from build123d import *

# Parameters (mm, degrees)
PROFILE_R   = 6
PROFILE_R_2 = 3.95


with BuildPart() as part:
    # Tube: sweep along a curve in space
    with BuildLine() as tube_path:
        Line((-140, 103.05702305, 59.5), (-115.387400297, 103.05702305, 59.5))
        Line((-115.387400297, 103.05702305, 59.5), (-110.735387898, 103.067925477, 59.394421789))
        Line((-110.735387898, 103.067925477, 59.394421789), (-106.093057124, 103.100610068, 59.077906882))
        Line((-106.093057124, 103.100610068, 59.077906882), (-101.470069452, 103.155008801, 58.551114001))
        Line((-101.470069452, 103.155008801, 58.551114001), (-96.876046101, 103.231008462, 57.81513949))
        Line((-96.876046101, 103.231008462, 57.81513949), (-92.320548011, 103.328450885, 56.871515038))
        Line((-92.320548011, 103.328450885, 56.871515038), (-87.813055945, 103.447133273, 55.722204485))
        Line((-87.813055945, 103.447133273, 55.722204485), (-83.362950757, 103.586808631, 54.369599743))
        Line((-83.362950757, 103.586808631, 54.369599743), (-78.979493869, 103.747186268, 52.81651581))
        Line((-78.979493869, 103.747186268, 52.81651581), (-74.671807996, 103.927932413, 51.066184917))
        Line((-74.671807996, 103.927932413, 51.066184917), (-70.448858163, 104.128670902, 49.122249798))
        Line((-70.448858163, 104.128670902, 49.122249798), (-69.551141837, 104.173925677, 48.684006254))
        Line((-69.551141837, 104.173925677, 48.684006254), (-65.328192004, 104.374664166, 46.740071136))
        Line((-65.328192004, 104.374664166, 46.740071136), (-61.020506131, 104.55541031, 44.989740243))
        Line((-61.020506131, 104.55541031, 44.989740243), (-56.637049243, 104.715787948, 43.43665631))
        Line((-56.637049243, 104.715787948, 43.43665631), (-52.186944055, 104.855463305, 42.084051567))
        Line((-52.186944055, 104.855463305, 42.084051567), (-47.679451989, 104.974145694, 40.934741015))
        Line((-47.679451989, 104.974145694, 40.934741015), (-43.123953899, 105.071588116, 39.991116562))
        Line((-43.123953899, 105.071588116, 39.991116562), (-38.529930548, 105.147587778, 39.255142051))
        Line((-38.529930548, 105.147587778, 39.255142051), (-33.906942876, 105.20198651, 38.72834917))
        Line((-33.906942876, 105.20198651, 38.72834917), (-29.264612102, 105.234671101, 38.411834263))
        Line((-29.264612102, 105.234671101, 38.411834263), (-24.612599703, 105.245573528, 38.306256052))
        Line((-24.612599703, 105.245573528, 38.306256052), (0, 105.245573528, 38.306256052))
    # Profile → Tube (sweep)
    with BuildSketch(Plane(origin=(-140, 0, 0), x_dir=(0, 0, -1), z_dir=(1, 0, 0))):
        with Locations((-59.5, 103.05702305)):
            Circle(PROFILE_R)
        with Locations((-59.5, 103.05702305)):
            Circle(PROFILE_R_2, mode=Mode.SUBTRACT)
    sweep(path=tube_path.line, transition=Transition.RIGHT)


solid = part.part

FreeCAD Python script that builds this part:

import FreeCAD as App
import Part
import Sketcher
from FreeCAD import Vector
Q = App.Units.Quantity

doc = App.newDocument("Part")
body = doc.addObject("PartDesign::Body", "Body")

sketch1 = body.newObject("Sketcher::SketchObject", "Sketch")
sketch1.AttachmentSupport = (doc.getObject("YZ_Plane"), [""])
sketch1.MapMode = "FlatFace"
sketch1.AttachmentOffset = App.Placement(Vector(0, 0, -140), App.Rotation())
sketch1.addGeometry([
    Part.Circle(Vector(103.1, 59.5, 0), Vector(0, 0, 1), 6),
    Part.Circle(Vector(103.1, 59.5, 0), Vector(0, 0, 1), 4),
], False)
sketch1.addConstraint([
    Sketcher.Constraint("Coincident", 1, 3, 0, 3),
    Sketcher.Constraint("Diameter", 0, Q("12 mm")),
    Sketcher.Constraint("Diameter", 1, Q("7.9 mm")),
    Sketcher.Constraint("DistanceY", -1, 1, 0, 3, Q("59.5 mm")),
    Sketcher.Constraint("DistanceX", -1, 1, 0, 3, Q("103.057023 mm")),
])

sketch2 = body.newObject("Sketcher::SketchObject", "Sketch001")
sketch2.Placement = App.Placement(Vector(0, 108.049054, 11.157576), App.Rotation(Vector(0, -0.102717775, 0.99471054), Vector(1, 0, 0), Vector(0, 0.99471054, 0.102717775), "ZXY"))
sketch2.addGeometry([
    Part.LineSegment(Vector(48.6, -140, 0), Vector(48.6, -115.4, 0)),
    Part.LineSegment(Vector(48.6, -115.4, 0), Vector(48.5, -110.7, 0)),
    Part.LineSegment(Vector(48.5, -110.7, 0), Vector(48.2, -106.1, 0)),
    Part.LineSegment(Vector(48.2, -106.1, 0), Vector(47.6, -101.5, 0)),
    Part.LineSegment(Vector(47.6, -101.5, 0), Vector(46.9, -96.9, 0)),
    Part.LineSegment(Vector(46.9, -96.9, 0), Vector(46, -92.3, 0)),
    Part.LineSegment(Vector(46, -92.3, 0), Vector(44.8, -87.8, 0)),
    Part.LineSegment(Vector(44.8, -87.8, 0), Vector(43.4, -83.4, 0)),
    Part.LineSegment(Vector(43.4, -83.4, 0), Vector(41.9, -79, 0)),
    Part.LineSegment(Vector(41.9, -79, 0), Vector(40.1, -74.7, 0)),
    Part.LineSegment(Vector(40.1, -74.7, 0), Vector(38.2, -70.4, 0)),
    Part.LineSegment(Vector(38.2, -70.4, 0), Vector(37.7, -69.6, 0)),
    Part.LineSegment(Vector(37.7, -69.6, 0), Vector(35.8, -65.3, 0)),
    Part.LineSegment(Vector(35.8, -65.3, 0), Vector(34, -61, 0)),
    Part.LineSegment(Vector(34, -61, 0), Vector(32.5, -56.6, 0)),
    Part.LineSegment(Vector(32.5, -56.6, 0), Vector(31.1, -52.2, 0)),
    Part.LineSegment(Vector(31.1, -52.2, 0), Vector(29.9, -47.7, 0)),
    Part.LineSegment(Vector(29.9, -47.7, 0), Vector(29, -43.1, 0)),
    Part.LineSegment(Vector(29, -43.1, 0), Vector(28.2, -38.5, 0)),
    Part.LineSegment(Vector(28.2, -38.5, 0), Vector(27.7, -33.9, 0)),
    Part.LineSegment(Vector(27.7, -33.9, 0), Vector(27.4, -29.3, 0)),
    Part.LineSegment(Vector(27.4, -29.3, 0), Vector(27.3, -24.6, 0)),
    Part.LineSegment(Vector(27.3, -24.6, 0), Vector(27.3, 0, 0)),
], False)
sketch2.addConstraint([
    Sketcher.Constraint("Coincident", 0, 2, 1, 1),
    Sketcher.Constraint("Coincident", 1, 2, 2, 1),
    Sketcher.Constraint("Coincident", 2, 2, 3, 1),
    Sketcher.Constraint("Coincident", 3, 2, 4, 1),
    Sketcher.Constraint("Coincident", 4, 2, 5, 1),
    Sketcher.Constraint("Coincident", 5, 2, 6, 1),
    Sketcher.Constraint("Coincident", 6, 2, 7, 1),
    Sketcher.Constraint("Coincident", 7, 2, 8, 1),
    Sketcher.Constraint("Coincident", 8, 2, 9, 1),
    Sketcher.Constraint("Coincident", 9, 2, 10, 1),
    Sketcher.Constraint("Coincident", 10, 2, 11, 1),
    Sketcher.Constraint("Coincident", 11, 2, 12, 1),
    Sketcher.Constraint("Coincident", 12, 2, 13, 1),
    Sketcher.Constraint("Coincident", 13, 2, 14, 1),
    Sketcher.Constraint("Coincident", 14, 2, 15, 1),
    Sketcher.Constraint("Coincident", 15, 2, 16, 1),
    Sketcher.Constraint("Coincident", 16, 2, 17, 1),
    Sketcher.Constraint("Coincident", 17, 2, 18, 1),
    Sketcher.Constraint("Coincident", 18, 2, 19, 1),
    Sketcher.Constraint("Coincident", 19, 2, 20, 1),
    Sketcher.Constraint("Coincident", 20, 2, 21, 1),
    Sketcher.Constraint("Coincident", 21, 2, 22, 1),
    Sketcher.Constraint("Vertical", 0),
    Sketcher.Constraint("Vertical", 22),
    Sketcher.Constraint("PointOnObject", 22, 2, -1),
    Sketcher.Constraint("Parallel", 10, 12),
    Sketcher.Constraint("Parallel", 9, 13),
    Sketcher.Constraint("Parallel", 8, 14),
    Sketcher.Constraint("Parallel", 7, 15),
    Sketcher.Constraint("Parallel", 6, 16),
    Sketcher.Constraint("Parallel", 5, 17),
    Sketcher.Constraint("Parallel", 4, 18),
    Sketcher.Constraint("Parallel", 3, 19),
    Sketcher.Constraint("Parallel", 2, 20),
    Sketcher.Constraint("Parallel", 1, 21),
    Sketcher.Constraint("Equal", 0, 22),
    Sketcher.Constraint("Equal", 1, 2),
    Sketcher.Constraint("Equal", 2, 3),
    Sketcher.Constraint("Equal", 3, 4),
    Sketcher.Constraint("Equal", 4, 5),
    Sketcher.Constraint("Equal", 5, 6),
    Sketcher.Constraint("Equal", 6, 7),
    Sketcher.Constraint("Equal", 7, 8),
    Sketcher.Constraint("Equal", 8, 9),
    Sketcher.Constraint("Equal", 9, 10),
    Sketcher.Constraint("Equal", 10, 12),
    Sketcher.Constraint("Equal", 12, 13),
    Sketcher.Constraint("Equal", 13, 14),
    Sketcher.Constraint("Equal", 14, 15),
    Sketcher.Constraint("Equal", 15, 16),
    Sketcher.Constraint("Equal", 16, 17),
    Sketcher.Constraint("Equal", 17, 18),
    Sketcher.Constraint("Equal", 18, 19),
    Sketcher.Constraint("Equal", 19, 20),
    Sketcher.Constraint("Equal", 20, 21),
    Sketcher.Constraint("Distance", 11, Q("1 mm")),
    Sketcher.Constraint("DistanceY", 0, 1, -1, 1, Q("140 mm")),
    Sketcher.Constraint("DistanceY", 2, 2, 6, 2, Q("18.280001 mm")),
    Sketcher.Constraint("DistanceY", 0, 1, 0, 2, Q("24.6126 mm")),
    Sketcher.Constraint("DistanceX", 2, 2, 1, 2, Q("0.318198 mm")),
    Sketcher.Constraint("DistanceY", 4, 2, 5, 2, Q("4.555498 mm")),
    Sketcher.Constraint("DistanceX", 9, 2, 5, 2, Q("5.8362 mm")),
    Sketcher.Constraint("DistanceY", 8, 2, 12, 2, Q("13.651302 mm")),
    Sketcher.Constraint("DistanceX", 12, 2, 7, 2, Q("7.670099 mm")),
    Sketcher.Constraint("DistanceX", -1, 1, 0, 1, Q("48.599489 mm")),
    Sketcher.Constraint("DistanceX", -1, 1, 1, 2, Q("48.493349 mm")),
    Sketcher.Constraint("DistanceY", 3, 2, -1, 1, Q("101.470069 mm")),
    Sketcher.Constraint("DistanceX", -1, 1, 4, 2, Q("46.905669 mm")),
    Sketcher.Constraint("DistanceY", 7, 2, -1, 1, Q("83.362951 mm")),
    Sketcher.Constraint("DistanceY", 10, 2, -1, 1, Q("70.448858 mm")),
])
doc.recompute()

additivepipe = body.newObject("PartDesign::AdditivePipe", "AdditivePipe")
additivepipe.Profile = sketch1
additivepipe.Spine = (sketch2, ["Edge1", "Edge2", "Edge3", "Edge4", "Edge5", "Edge6", "Edge7", "Edge8", "Edge9", "Edge10", "Edge11", "Edge12", "Edge13", "Edge14", "Edge15", "Edge16", "Edge17", "Edge18", "Edge19", "Edge20", "Edge21", "Edge22", "Edge23"])
additivepipe.Transition = "Right corner"

doc.recompute()
